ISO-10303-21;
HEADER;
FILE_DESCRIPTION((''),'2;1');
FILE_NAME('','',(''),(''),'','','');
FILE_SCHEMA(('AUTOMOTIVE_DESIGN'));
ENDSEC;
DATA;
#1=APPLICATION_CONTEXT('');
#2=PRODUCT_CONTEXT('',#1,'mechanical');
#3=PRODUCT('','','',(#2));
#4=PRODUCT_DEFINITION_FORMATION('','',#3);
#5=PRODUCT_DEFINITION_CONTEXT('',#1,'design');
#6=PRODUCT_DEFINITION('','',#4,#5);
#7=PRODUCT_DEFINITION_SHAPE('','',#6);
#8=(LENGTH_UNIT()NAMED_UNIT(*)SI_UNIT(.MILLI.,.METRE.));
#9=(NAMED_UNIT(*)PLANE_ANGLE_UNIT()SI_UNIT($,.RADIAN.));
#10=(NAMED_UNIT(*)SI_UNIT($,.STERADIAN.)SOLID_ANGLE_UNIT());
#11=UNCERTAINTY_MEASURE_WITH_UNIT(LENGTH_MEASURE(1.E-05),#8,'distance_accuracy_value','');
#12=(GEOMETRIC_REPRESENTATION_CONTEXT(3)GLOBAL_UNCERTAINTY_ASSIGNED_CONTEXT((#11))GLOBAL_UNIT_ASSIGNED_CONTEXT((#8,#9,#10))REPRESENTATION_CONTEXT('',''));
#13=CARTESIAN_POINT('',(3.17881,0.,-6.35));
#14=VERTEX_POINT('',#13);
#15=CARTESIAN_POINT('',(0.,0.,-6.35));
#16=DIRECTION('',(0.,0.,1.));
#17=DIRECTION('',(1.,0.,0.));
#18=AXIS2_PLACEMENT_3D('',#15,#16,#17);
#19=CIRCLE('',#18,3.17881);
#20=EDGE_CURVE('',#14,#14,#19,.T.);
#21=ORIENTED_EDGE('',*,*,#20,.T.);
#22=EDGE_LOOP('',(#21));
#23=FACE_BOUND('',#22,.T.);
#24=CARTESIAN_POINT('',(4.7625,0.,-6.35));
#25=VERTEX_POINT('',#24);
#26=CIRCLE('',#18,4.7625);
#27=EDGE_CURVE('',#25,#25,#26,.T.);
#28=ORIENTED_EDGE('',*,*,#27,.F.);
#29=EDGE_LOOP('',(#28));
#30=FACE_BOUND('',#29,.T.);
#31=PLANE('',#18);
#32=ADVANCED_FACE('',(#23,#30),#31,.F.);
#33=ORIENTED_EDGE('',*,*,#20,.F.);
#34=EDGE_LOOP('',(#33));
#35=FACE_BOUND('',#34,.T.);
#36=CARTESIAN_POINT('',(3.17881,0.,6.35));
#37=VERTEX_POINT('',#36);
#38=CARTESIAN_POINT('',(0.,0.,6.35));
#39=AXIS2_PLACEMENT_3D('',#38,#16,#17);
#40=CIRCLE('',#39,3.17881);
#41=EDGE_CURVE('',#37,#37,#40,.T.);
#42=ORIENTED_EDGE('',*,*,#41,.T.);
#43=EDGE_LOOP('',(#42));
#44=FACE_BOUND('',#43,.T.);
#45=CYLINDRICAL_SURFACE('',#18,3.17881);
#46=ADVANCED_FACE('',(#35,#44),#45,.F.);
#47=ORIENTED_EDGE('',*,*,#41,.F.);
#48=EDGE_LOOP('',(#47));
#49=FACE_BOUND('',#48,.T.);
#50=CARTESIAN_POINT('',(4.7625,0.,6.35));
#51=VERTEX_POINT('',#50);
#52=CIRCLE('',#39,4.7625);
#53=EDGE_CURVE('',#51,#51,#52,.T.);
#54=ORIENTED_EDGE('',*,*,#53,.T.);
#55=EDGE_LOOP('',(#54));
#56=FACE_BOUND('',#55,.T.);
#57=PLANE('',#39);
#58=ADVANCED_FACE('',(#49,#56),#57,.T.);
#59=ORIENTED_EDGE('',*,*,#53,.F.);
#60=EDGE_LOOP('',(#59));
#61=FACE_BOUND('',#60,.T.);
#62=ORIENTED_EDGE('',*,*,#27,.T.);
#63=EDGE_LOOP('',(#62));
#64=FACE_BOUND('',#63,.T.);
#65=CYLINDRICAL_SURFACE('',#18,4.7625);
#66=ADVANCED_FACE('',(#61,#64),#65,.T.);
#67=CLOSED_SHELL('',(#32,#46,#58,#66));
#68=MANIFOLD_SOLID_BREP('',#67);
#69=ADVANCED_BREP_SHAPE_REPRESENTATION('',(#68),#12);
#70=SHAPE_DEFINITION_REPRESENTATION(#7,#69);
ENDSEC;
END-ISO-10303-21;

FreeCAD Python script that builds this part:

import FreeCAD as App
import Part
import Sketcher
Q = App.Units.Quantity

doc = App.newDocument("Part")
params = doc.addObject("Spreadsheet::Sheet", "Params")
for row, (alias, value) in enumerate([
    ("sketch1_diameter", "0.375 in"),
    ("pad1_length", "0.25 in"),
    ("pad1_length2", "0.25 in"),
], start=1):
    params.set(f"A{row}", alias)
    params.set(f"B{row}", "=" + value)
    params.setAlias(f"B{row}", alias)

body = doc.addObject("PartDesign::Body", "Body")

# Sketch on XY plane
sketch1 = body.newObject("Sketcher::SketchObject", "Sketch")
sketch1.AttachmentSupport = (doc.getObject("XY_Plane"), [""])
sketch1.MapMode = "FlatFace"
sketch1.addGeometry(Part.Circle(App.Vector(0, 0, 0), App.Vector(0, 0, 1), 4.8), False)
sketch1.addGeometry(Part.Circle(App.Vector(0, 0, 0), App.Vector(0, 0, 1), 3.2), False)
sketch1.addConstraint(Sketcher.Constraint("Coincident", 0, 3, -1, 1))
sketch1.addConstraint(Sketcher.Constraint("Coincident", 1, 3, -1, 1))
sketch1.addConstraint(Sketcher.Constraint("Diameter", 0, Q("0.375 in")))
sketch1.addConstraint(Sketcher.Constraint("Diameter", 1, Q("0.2503 in")))
sketch1.setExpression("Constraints[2]", "Params.sketch1_diameter")
pad1 = body.newObject("PartDesign::Pad", "Pad")
pad1.Profile = sketch1
pad1.Type = "TwoLengths"
pad1.setExpression("Length", "Params.pad1_length")
pad1.setExpression("Length2", "Params.pad1_length2")

doc.recompute()
